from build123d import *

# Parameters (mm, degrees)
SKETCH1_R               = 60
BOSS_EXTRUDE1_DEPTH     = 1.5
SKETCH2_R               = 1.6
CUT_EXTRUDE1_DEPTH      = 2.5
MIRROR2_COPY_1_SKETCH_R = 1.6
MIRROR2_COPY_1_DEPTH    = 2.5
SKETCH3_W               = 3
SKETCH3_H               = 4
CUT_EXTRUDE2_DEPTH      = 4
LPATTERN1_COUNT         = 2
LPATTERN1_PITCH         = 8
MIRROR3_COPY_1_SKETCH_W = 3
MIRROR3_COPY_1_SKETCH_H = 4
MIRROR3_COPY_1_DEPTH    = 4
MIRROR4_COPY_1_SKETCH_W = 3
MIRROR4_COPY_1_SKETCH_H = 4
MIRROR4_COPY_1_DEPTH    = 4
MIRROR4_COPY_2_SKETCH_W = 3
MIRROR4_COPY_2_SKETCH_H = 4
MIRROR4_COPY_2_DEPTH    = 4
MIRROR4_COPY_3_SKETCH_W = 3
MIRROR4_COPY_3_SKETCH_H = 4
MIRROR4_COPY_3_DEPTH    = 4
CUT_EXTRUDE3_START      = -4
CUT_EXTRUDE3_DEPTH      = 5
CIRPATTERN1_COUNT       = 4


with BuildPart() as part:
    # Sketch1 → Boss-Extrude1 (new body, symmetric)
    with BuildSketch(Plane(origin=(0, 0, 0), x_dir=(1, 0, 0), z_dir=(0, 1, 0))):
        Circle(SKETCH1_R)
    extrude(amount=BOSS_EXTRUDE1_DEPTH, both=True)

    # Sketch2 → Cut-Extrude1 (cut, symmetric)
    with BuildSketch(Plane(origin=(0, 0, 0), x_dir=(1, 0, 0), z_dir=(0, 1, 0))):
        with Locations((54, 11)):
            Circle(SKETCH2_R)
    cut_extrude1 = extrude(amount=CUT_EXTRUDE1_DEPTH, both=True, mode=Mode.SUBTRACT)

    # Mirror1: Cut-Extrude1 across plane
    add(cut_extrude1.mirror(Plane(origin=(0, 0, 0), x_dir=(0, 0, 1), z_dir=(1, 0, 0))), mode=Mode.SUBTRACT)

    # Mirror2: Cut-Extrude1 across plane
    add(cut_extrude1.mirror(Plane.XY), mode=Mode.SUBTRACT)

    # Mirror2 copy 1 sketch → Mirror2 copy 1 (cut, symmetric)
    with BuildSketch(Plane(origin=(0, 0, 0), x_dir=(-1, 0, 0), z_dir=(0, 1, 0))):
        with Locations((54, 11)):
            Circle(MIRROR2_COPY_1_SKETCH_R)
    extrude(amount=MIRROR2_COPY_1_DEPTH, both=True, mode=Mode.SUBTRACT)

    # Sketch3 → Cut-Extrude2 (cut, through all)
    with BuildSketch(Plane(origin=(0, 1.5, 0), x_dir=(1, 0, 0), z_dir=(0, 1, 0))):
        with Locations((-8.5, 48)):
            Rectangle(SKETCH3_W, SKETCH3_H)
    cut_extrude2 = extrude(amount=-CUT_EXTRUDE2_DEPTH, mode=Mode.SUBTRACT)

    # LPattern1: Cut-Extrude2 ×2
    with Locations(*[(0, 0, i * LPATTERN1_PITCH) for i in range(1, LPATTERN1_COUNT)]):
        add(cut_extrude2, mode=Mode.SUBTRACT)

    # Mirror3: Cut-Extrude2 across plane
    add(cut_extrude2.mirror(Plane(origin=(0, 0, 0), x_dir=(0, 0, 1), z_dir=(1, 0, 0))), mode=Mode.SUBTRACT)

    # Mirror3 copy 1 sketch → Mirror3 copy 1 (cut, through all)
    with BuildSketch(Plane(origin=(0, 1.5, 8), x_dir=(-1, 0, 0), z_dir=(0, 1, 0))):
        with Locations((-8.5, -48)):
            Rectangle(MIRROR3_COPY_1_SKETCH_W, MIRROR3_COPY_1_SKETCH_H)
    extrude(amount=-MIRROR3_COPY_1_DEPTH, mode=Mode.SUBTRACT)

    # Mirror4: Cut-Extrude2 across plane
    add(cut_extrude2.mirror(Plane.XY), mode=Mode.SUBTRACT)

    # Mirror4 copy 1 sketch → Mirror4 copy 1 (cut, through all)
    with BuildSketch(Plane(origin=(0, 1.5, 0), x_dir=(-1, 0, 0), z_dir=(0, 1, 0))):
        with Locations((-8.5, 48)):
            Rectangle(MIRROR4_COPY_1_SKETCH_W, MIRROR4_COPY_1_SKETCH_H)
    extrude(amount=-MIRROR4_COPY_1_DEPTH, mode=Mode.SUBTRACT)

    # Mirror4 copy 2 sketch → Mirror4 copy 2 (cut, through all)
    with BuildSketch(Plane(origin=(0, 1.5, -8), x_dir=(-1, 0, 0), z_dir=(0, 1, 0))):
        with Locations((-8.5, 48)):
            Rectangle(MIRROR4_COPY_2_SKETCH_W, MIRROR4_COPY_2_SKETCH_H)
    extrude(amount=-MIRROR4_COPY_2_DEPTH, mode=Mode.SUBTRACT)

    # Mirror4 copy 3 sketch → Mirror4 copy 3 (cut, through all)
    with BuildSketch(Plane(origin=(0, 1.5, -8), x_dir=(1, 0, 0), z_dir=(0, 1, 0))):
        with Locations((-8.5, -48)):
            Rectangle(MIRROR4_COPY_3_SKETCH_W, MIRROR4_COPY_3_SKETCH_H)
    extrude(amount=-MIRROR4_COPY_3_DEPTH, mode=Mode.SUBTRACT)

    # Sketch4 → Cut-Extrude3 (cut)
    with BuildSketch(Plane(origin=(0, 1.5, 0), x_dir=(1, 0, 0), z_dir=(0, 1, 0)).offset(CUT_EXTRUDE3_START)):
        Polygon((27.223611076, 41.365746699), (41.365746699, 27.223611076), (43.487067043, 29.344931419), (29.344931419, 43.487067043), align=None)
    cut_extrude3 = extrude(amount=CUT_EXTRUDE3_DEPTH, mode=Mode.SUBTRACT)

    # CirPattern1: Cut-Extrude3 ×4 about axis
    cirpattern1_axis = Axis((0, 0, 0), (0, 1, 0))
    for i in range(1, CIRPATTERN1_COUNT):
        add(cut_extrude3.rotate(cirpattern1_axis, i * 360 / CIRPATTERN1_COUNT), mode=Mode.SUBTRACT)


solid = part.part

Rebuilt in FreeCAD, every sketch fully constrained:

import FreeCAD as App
import Part
import Sketcher
Q = App.Units.Quantity

doc = App.newDocument("Part")
body = doc.addObject("PartDesign::Body", "Body")

sketch1 = doc.addObject("Sketcher::SketchObject", "Sketch")
body.addObject(sketch1)
sketch1.AttachmentSupport = (doc.XZ_Plane, [""])
sketch1.MapMode = "FlatFace"
sketch1.addGeometry(Part.Circle(App.Vector(0, 0, 0), App.Vector(0, 0, 1), 60), False)
sketch1.addConstraint(Sketcher.Constraint("Coincident", 0, 3, -1, 1))
sketch1.addConstraint(Sketcher.Constraint("Diameter", 0, Q("120 mm")))
pad1 = doc.addObject("PartDesign::Pad", "Pad")
body.addObject(pad1)
pad1.Profile = sketch1
pad1.Length = 3
pad1.Midplane = True

sketch2 = doc.addObject("Sketcher::SketchObject", "Sketch001")
body.addObject(sketch2)
sketch2.AttachmentSupport = (doc.XZ_Plane, [""])
sketch2.MapMode = "FlatFace"
sketch2.addGeometry(Part.Circle(App.Vector(54, -11, 0), App.Vector(0, 0, 1), 1.6), False)
sketch2.addConstraint(Sketcher.Constraint("Diameter", 0, Q("3.2 mm")))
sketch2.addConstraint(Sketcher.Constraint("DistanceX", -1, 1, 0, 3, Q("54 mm")))
sketch2.addConstraint(Sketcher.Constraint("DistanceY", 0, 3, -1, 1, Q("11 mm")))
pocket1 = doc.addObject("PartDesign::Pocket", "Pocket")
body.addObject(pocket1)
pocket1.Profile = sketch2
pocket1.Length = 5
pocket1.Midplane = True
doc.recompute()

mirrored = doc.addObject("PartDesign::Mirrored", "Mirrored")
body.addObject(mirrored)
mirrored.Originals = [pocket1]
mirrored.MirrorPlane = (doc.YZ_Plane, [""])
body.Tip = mirrored
doc.recompute()

mirrored2 = doc.addObject("PartDesign::Mirrored", "Mirrored001")
body.addObject(mirrored2)
mirrored2.Originals = [pocket1]
mirrored2.MirrorPlane = (doc.XY_Plane, [""])
body.Tip = mirrored2

sketch3 = doc.addObject("Sketcher::SketchObject", "Sketch002")
body.addObject(sketch3)
sketch3.AttachmentSupport = (doc.XZ_Plane, [""])
sketch3.MapMode = "FlatFace"
sketch3.addGeometry(Part.Circle(App.Vector(-54, 11, 0), App.Vector(0, 0, 1), 1.6), False)
sketch3.addConstraint(Sketcher.Constraint("Diameter", 0, Q("3.2 mm")))
sketch3.addConstraint(Sketcher.Constraint("DistanceX", 0, 3, -1, 1, Q("54 mm")))
sketch3.addConstraint(Sketcher.Constraint("DistanceY", -1, 1, 0, 3, Q("11 mm")))
pocket2 = doc.addObject("PartDesign::Pocket", "Pocket001")
body.addObject(pocket2)
pocket2.Profile = sketch3
pocket2.Length = 5
pocket2.Midplane = True

sketch4 = doc.addObject("Sketcher::SketchObject", "Sketch003")
body.addObject(sketch4)
sketch4.AttachmentSupport = (doc.XZ_Plane, [""])
sketch4.MapMode = "FlatFace"
sketch4.AttachmentOffset = App.Placement(App.Vector(0, 0, -1.5), App.Rotation())
sketch4.addGeometry(Part.LineSegment(App.Vector(-10, -50, 0), App.Vector(-10, -46, 0)), False)
sketch4.addGeometry(Part.LineSegment(App.Vector(-10, -46, 0), App.Vector(-7, -46, 0)), False)
sketch4.addGeometry(Part.LineSegment(App.Vector(-7, -46, 0), App.Vector(-7, -50, 0)), False)
sketch4.addGeometry(Part.LineSegment(App.Vector(-7, -50, 0), App.Vector(-10, -50, 0)), False)
sketch4.addConstraint(Sketcher.Constraint("Coincident", 0, 2, 1, 1))
sketch4.addConstraint(Sketcher.Constraint("Coincident", 1, 2, 2, 1))
sketch4.addConstraint(Sketcher.Constraint("Coincident", 2, 2, 3, 1))
sketch4.addConstraint(Sketcher.Constraint("Coincident", 3, 2, 0, 1))
sketch4.addConstraint(Sketcher.Constraint("Vertical", 0))
sketch4.addConstraint(Sketcher.Constraint("Horizontal", 1))
sketch4.addConstraint(Sketcher.Constraint("Vertical", 2))
sketch4.addConstraint(Sketcher.Constraint("Horizontal", 3))
sketch4.addConstraint(Sketcher.Constraint("DistanceX", 1, 1, 1, 2, Q("3 mm")))
sketch4.addConstraint(Sketcher.Constraint("DistanceY", 0, 1, 0, 2, Q("4 mm")))
sketch4.addConstraint(Sketcher.Constraint("DistanceX", 0, 2, -1, 1, Q("10 mm")))
sketch4.addConstraint(Sketcher.Constraint("DistanceY", 0, 2, -1, 1, Q("46 mm")))
pocket3 = doc.addObject("PartDesign::Pocket", "Pocket002")
body.addObject(pocket3)
pocket3.Profile = sketch4
pocket3.Type = "ThroughAll"
pocket3.Reversed = True
doc.recompute()

linearpattern = doc.addObject("PartDesign::LinearPattern", "LinearPattern")
body.addObject(linearpattern)
linearpattern.Originals = [pocket3]
linearpattern.Direction = (doc.Z_Axis, [""])
linearpattern.Mode = "offset"
linearpattern.Offset = 8
linearpattern.Occurrences = 2
body.Tip = linearpattern
doc.recompute()

mirrored3 = doc.addObject("PartDesign::Mirrored", "Mirrored002")
body.addObject(mirrored3)
mirrored3.Originals = [pocket3]
mirrored3.MirrorPlane = (doc.YZ_Plane, [""])
body.Tip = mirrored3

sketch5 = doc.addObject("Sketcher::SketchObject", "Sketch004")
body.addObject(sketch5)
sketch5.AttachmentSupport = (doc.XZ_Plane, [""])
sketch5.MapMode = "FlatFace"
sketch5.AttachmentOffset = App.Placement(App.Vector(0, 0, -1.5), App.Rotation())
sketch5.addGeometry(Part.LineSegment(App.Vector(10, -38, 0), App.Vector(10, -42, 0)), False)
sketch5.addGeometry(Part.LineSegment(App.Vector(10, -42, 0), App.Vector(7, -42, 0)), False)
sketch5.addGeometry(Part.LineSegment(App.Vector(7, -42, 0), App.Vector(7, -38, 0)), False)
sketch5.addGeometry(Part.LineSegment(App.Vector(7, -38, 0), App.Vector(10, -38, 0)), False)
sketch5.addConstraint(Sketcher.Constraint("Coincident", 0, 2, 1, 1))
sketch5.addConstraint(Sketcher.Constraint("Coincident", 1, 2, 2, 1))
sketch5.addConstraint(Sketcher.Constraint("Coincident", 2, 2, 3, 1))
sketch5.addConstraint(Sketcher.Constraint("Coincident", 3, 2, 0, 1))
sketch5.addConstraint(Sketcher.Constraint("Vertical", 0))
sketch5.addConstraint(Sketcher.Constraint("Horizontal", 1))
sketch5.addConstraint(Sketcher.Constraint("Vertical", 2))
sketch5.addConstraint(Sketcher.Constraint("Horizontal", 3))
sketch5.addConstraint(Sketcher.Constraint("DistanceX", 1, 2, 1, 1, Q("3 mm")))
sketch5.addConstraint(Sketcher.Constraint("DistanceY", 0, 2, 0, 1, Q("4 mm")))
sketch5.addConstraint(Sketcher.Constraint("DistanceX", -1, 1, 0, 2, Q("10 mm")))
sketch5.addConstraint(Sketcher.Constraint("DistanceY", 0, 2, -1, 1, Q("42 mm")))
pocket4 = doc.addObject("PartDesign::Pocket", "Pocket003")
body.addObject(pocket4)
pocket4.Profile = sketch5
pocket4.Type = "ThroughAll"
pocket4.Reversed = True
doc.recompute()

mirrored4 = doc.addObject("PartDesign::Mirrored", "Mirrored003")
body.addObject(mirrored4)
mirrored4.Originals = [pocket3]
mirrored4.MirrorPlane = (doc.XY_Plane, [""])
body.Tip = mirrored4

sketch6 = doc.addObject("Sketcher::SketchObject", "Sketch005")
body.addObject(sketch6)
sketch6.AttachmentSupport = (doc.XZ_Plane, [""])
sketch6.MapMode = "FlatFace"
sketch6.AttachmentOffset = App.Placement(App.Vector(0, 0, -1.5), App.Rotation())
sketch6.addGeometry(Part.LineSegment(App.Vector(10, 50, 0), App.Vector(10, 46, 0)), False)
sketch6.addGeometry(Part.LineSegment(App.Vector(10, 46, 0), App.Vector(7, 46, 0)), False)
sketch6.addGeometry(Part.LineSegment(App.Vector(7, 46, 0), App.Vector(7, 50, 0)), False)
sketch6.addGeometry(Part.LineSegment(App.Vector(7, 50, 0), App.Vector(10, 50, 0)), False)
sketch6.addConstraint(Sketcher.Constraint("Coincident", 0, 2, 1, 1))
sketch6.addConstraint(Sketcher.Constraint("Coincident", 1, 2, 2, 1))
sketch6.addConstraint(Sketcher.Constraint("Coincident", 2, 2, 3, 1))
sketch6.addConstraint(Sketcher.Constraint("Coincident", 3, 2, 0, 1))
sketch6.addConstraint(Sketcher.Constraint("Vertical", 0))
sketch6.addConstraint(Sketcher.Constraint("Horizontal", 1))
sketch6.addConstraint(Sketcher.Constraint("Vertical", 2))
sketch6.addConstraint(Sketcher.Constraint("Horizontal", 3))
sketch6.addConstraint(Sketcher.Constraint("DistanceX", 1, 2, 1, 1, Q("3 mm")))
sketch6.addConstraint(Sketcher.Constraint("DistanceY", 0, 2, 0, 1, Q("4 mm")))
sketch6.addConstraint(Sketcher.Constraint("DistanceX", -1, 1, 0, 2, Q("10 mm")))
sketch6.addConstraint(Sketcher.Constraint("DistanceY", -1, 1, 0, 2, Q("46 mm")))
pocket5 = doc.addObject("PartDesign::Pocket", "Pocket004")
body.addObject(pocket5)
pocket5.Profile = sketch6
pocket5.Type = "ThroughAll"
pocket5.Reversed = True

sketch7 = doc.addObject("Sketcher::SketchObject", "Sketch006")
body.addObject(sketch7)
sketch7.AttachmentSupport = (doc.XZ_Plane, [""])
sketch7.MapMode = "FlatFace"
sketch7.AttachmentOffset = App.Placement(App.Vector(0, 0, -1.5), App.Rotation())
sketch7.addGeometry(Part.LineSegment(App.Vector(10, 42, 0), App.Vector(10, 38, 0)), False)
sketch7.addGeometry(Part.LineSegment(App.Vector(10, 38, 0), App.Vector(7, 38, 0)), False)
sketch7.addGeometry(Part.LineSegment(App.Vector(7, 38, 0), App.Vector(7, 42, 0)), False)
sketch7.addGeometry(Part.LineSegment(App.Vector(7, 42, 0), App.Vector(10, 42, 0)), False)
sketch7.addConstraint(Sketcher.Constraint("Coincident", 0, 2, 1, 1))
sketch7.addConstraint(Sketcher.Constraint("Coincident", 1, 2, 2, 1))
sketch7.addConstraint(Sketcher.Constraint("Coincident", 2, 2, 3, 1))
sketch7.addConstraint(Sketcher.Constraint("Coincident", 3, 2, 0, 1))
sketch7.addConstraint(Sketcher.Constraint("Vertical", 0))
sketch7.addConstraint(Sketcher.Constraint("Horizontal", 1))
sketch7.addConstraint(Sketcher.Constraint("Vertical", 2))
sketch7.addConstraint(Sketcher.Constraint("Horizontal", 3))
sketch7.addConstraint(Sketcher.Constraint("DistanceX", 1, 2, 1, 1, Q("3 mm")))
sketch7.addConstraint(Sketcher.Constraint("DistanceY", 0, 2, 0, 1, Q("4 mm")))
sketch7.addConstraint(Sketcher.Constraint("DistanceX", -1, 1, 0, 2, Q("10 mm")))
sketch7.addConstraint(Sketcher.Constraint("DistanceY", -1, 1, 0, 2, Q("38 mm")))
pocket6 = doc.addObject("PartDesign::Pocket", "Pocket005")
body.addObject(pocket6)
pocket6.Profile = sketch7
pocket6.Type = "ThroughAll"
pocket6.Reversed = True

sketch8 = doc.addObject("Sketcher::SketchObject", "Sketch007")
body.addObject(sketch8)
sketch8.AttachmentSupport = (doc.XZ_Plane, [""])
sketch8.MapMode = "FlatFace"
sketch8.AttachmentOffset = App.Placement(App.Vector(0, 0, -1.5), App.Rotation())
sketch8.addGeometry(Part.LineSegment(App.Vector(-10, 38, 0), App.Vector(-10, 42, 0)), False)
sketch8.addGeometry(Part.LineSegment(App.Vector(-10, 42, 0), App.Vector(-7, 42, 0)), False)
sketch8.addGeometry(Part.LineSegment(App.Vector(-7, 42, 0), App.Vector(-7, 38, 0)), False)
sketch8.addGeometry(Part.LineSegment(App.Vector(-7, 38, 0), App.Vector(-10, 38, 0)), False)
sketch8.addConstraint(Sketcher.Constraint("Coincident", 0, 2, 1, 1))
sketch8.addConstraint(Sketcher.Constraint("Coincident", 1, 2, 2, 1))
sketch8.addConstraint(Sketcher.Constraint("Coincident", 2, 2, 3, 1))
sketch8.addConstraint(Sketcher.Constraint("Coincident", 3, 2, 0, 1))
sketch8.addConstraint(Sketcher.Constraint("Vertical", 0))
sketch8.addConstraint(Sketcher.Constraint("Horizontal", 1))
sketch8.addConstraint(Sketcher.Constraint("Vertical", 2))
sketch8.addConstraint(Sketcher.Constraint("Horizontal", 3))
sketch8.addConstraint(Sketcher.Constraint("DistanceX", 1, 1, 1, 2, Q("3 mm")))
sketch8.addConstraint(Sketcher.Constraint("DistanceY", 0, 1, 0, 2, Q("4 mm")))
sketch8.addConstraint(Sketcher.Constraint("DistanceX", 0, 2, -1, 1, Q("10 mm")))
sketch8.addConstraint(Sketcher.Constraint("DistanceY", -1, 1, 0, 2, Q("42 mm")))
pocket7 = doc.addObject("PartDesign::Pocket", "Pocket006")
body.addObject(pocket7)
pocket7.Profile = sketch8
pocket7.Type = "ThroughAll"
pocket7.Reversed = True

sketch9 = doc.addObject("Sketcher::SketchObject", "Sketch008")
body.addObject(sketch9)
sketch9.AttachmentSupport = (doc.XZ_Plane, [""])
sketch9.MapMode = "FlatFace"
sketch9.AttachmentOffset = App.Placement(App.Vector(0, 0, 2.5), App.Rotation())
sketch9.addGeometry(Part.LineSegment(App.Vector(27.2, -41.4, 0), App.Vector(41.4, -27.2, 0)), False)
sketch9.addGeometry(Part.LineSegment(App.Vector(41.4, -27.2, 0), App.Vector(43.5, -29.3, 0)), False)
sketch9.addGeometry(Part.LineSegment(App.Vector(43.5, -29.3, 0), App.Vector(29.3, -43.5, 0)), False)
sketch9.addGeometry(Part.LineSegment(App.Vector(29.3, -43.5, 0), App.Vector(27.2, -41.4, 0)), False)
sketch9.addConstraint(Sketcher.Constraint("Coincident", 0, 2, 1, 1))
sketch9.addConstraint(Sketcher.Constraint("Coincident", 1, 2, 2, 1))
sketch9.addConstraint(Sketcher.Constraint("Coincident", 2, 2, 3, 1))
sketch9.addConstraint(Sketcher.Constraint("Coincident", 3, 2, 0, 1))
sketch9.addConstraint(Sketcher.Constraint("Perpendicular", 0, 1))
sketch9.addConstraint(Sketcher.Constraint("Perpendicular", 1, 2))
sketch9.addConstraint(Sketcher.Constraint("Perpendicular", 2, 3))
sketch9.addConstraint(Sketcher.Constraint("Angle", 0, Q("45 deg")))
sketch9.addConstraint(Sketcher.Constraint("Distance", 0, Q("20 mm")))
sketch9.addConstraint(Sketcher.Constraint("Distance", 1, Q("3 mm")))
sketch9.addConstraint(Sketcher.Constraint("DistanceY", 0, 2, -1, 1, Q("27.223611 mm")))
sketch9.addConstraint(Sketcher.Constraint("DistanceX", -1, 1, 2, 2, Q("29.344931 mm")))
pocket8 = doc.addObject("PartDesign::Pocket", "Pocket007")
body.addObject(pocket8)
pocket8.Profile = sketch9
pocket8.Length = 5
doc.recompute()

polarpattern = doc.addObject("PartDesign::PolarPattern", "PolarPattern")
body.addObject(polarpattern)
polarpattern.Originals = [pocket8]
polarpattern.Axis = (doc.Y_Axis, [""])
polarpattern.Angle = 360
polarpattern.Occurrences = 4
body.Tip = polarpattern

doc.recompute()
